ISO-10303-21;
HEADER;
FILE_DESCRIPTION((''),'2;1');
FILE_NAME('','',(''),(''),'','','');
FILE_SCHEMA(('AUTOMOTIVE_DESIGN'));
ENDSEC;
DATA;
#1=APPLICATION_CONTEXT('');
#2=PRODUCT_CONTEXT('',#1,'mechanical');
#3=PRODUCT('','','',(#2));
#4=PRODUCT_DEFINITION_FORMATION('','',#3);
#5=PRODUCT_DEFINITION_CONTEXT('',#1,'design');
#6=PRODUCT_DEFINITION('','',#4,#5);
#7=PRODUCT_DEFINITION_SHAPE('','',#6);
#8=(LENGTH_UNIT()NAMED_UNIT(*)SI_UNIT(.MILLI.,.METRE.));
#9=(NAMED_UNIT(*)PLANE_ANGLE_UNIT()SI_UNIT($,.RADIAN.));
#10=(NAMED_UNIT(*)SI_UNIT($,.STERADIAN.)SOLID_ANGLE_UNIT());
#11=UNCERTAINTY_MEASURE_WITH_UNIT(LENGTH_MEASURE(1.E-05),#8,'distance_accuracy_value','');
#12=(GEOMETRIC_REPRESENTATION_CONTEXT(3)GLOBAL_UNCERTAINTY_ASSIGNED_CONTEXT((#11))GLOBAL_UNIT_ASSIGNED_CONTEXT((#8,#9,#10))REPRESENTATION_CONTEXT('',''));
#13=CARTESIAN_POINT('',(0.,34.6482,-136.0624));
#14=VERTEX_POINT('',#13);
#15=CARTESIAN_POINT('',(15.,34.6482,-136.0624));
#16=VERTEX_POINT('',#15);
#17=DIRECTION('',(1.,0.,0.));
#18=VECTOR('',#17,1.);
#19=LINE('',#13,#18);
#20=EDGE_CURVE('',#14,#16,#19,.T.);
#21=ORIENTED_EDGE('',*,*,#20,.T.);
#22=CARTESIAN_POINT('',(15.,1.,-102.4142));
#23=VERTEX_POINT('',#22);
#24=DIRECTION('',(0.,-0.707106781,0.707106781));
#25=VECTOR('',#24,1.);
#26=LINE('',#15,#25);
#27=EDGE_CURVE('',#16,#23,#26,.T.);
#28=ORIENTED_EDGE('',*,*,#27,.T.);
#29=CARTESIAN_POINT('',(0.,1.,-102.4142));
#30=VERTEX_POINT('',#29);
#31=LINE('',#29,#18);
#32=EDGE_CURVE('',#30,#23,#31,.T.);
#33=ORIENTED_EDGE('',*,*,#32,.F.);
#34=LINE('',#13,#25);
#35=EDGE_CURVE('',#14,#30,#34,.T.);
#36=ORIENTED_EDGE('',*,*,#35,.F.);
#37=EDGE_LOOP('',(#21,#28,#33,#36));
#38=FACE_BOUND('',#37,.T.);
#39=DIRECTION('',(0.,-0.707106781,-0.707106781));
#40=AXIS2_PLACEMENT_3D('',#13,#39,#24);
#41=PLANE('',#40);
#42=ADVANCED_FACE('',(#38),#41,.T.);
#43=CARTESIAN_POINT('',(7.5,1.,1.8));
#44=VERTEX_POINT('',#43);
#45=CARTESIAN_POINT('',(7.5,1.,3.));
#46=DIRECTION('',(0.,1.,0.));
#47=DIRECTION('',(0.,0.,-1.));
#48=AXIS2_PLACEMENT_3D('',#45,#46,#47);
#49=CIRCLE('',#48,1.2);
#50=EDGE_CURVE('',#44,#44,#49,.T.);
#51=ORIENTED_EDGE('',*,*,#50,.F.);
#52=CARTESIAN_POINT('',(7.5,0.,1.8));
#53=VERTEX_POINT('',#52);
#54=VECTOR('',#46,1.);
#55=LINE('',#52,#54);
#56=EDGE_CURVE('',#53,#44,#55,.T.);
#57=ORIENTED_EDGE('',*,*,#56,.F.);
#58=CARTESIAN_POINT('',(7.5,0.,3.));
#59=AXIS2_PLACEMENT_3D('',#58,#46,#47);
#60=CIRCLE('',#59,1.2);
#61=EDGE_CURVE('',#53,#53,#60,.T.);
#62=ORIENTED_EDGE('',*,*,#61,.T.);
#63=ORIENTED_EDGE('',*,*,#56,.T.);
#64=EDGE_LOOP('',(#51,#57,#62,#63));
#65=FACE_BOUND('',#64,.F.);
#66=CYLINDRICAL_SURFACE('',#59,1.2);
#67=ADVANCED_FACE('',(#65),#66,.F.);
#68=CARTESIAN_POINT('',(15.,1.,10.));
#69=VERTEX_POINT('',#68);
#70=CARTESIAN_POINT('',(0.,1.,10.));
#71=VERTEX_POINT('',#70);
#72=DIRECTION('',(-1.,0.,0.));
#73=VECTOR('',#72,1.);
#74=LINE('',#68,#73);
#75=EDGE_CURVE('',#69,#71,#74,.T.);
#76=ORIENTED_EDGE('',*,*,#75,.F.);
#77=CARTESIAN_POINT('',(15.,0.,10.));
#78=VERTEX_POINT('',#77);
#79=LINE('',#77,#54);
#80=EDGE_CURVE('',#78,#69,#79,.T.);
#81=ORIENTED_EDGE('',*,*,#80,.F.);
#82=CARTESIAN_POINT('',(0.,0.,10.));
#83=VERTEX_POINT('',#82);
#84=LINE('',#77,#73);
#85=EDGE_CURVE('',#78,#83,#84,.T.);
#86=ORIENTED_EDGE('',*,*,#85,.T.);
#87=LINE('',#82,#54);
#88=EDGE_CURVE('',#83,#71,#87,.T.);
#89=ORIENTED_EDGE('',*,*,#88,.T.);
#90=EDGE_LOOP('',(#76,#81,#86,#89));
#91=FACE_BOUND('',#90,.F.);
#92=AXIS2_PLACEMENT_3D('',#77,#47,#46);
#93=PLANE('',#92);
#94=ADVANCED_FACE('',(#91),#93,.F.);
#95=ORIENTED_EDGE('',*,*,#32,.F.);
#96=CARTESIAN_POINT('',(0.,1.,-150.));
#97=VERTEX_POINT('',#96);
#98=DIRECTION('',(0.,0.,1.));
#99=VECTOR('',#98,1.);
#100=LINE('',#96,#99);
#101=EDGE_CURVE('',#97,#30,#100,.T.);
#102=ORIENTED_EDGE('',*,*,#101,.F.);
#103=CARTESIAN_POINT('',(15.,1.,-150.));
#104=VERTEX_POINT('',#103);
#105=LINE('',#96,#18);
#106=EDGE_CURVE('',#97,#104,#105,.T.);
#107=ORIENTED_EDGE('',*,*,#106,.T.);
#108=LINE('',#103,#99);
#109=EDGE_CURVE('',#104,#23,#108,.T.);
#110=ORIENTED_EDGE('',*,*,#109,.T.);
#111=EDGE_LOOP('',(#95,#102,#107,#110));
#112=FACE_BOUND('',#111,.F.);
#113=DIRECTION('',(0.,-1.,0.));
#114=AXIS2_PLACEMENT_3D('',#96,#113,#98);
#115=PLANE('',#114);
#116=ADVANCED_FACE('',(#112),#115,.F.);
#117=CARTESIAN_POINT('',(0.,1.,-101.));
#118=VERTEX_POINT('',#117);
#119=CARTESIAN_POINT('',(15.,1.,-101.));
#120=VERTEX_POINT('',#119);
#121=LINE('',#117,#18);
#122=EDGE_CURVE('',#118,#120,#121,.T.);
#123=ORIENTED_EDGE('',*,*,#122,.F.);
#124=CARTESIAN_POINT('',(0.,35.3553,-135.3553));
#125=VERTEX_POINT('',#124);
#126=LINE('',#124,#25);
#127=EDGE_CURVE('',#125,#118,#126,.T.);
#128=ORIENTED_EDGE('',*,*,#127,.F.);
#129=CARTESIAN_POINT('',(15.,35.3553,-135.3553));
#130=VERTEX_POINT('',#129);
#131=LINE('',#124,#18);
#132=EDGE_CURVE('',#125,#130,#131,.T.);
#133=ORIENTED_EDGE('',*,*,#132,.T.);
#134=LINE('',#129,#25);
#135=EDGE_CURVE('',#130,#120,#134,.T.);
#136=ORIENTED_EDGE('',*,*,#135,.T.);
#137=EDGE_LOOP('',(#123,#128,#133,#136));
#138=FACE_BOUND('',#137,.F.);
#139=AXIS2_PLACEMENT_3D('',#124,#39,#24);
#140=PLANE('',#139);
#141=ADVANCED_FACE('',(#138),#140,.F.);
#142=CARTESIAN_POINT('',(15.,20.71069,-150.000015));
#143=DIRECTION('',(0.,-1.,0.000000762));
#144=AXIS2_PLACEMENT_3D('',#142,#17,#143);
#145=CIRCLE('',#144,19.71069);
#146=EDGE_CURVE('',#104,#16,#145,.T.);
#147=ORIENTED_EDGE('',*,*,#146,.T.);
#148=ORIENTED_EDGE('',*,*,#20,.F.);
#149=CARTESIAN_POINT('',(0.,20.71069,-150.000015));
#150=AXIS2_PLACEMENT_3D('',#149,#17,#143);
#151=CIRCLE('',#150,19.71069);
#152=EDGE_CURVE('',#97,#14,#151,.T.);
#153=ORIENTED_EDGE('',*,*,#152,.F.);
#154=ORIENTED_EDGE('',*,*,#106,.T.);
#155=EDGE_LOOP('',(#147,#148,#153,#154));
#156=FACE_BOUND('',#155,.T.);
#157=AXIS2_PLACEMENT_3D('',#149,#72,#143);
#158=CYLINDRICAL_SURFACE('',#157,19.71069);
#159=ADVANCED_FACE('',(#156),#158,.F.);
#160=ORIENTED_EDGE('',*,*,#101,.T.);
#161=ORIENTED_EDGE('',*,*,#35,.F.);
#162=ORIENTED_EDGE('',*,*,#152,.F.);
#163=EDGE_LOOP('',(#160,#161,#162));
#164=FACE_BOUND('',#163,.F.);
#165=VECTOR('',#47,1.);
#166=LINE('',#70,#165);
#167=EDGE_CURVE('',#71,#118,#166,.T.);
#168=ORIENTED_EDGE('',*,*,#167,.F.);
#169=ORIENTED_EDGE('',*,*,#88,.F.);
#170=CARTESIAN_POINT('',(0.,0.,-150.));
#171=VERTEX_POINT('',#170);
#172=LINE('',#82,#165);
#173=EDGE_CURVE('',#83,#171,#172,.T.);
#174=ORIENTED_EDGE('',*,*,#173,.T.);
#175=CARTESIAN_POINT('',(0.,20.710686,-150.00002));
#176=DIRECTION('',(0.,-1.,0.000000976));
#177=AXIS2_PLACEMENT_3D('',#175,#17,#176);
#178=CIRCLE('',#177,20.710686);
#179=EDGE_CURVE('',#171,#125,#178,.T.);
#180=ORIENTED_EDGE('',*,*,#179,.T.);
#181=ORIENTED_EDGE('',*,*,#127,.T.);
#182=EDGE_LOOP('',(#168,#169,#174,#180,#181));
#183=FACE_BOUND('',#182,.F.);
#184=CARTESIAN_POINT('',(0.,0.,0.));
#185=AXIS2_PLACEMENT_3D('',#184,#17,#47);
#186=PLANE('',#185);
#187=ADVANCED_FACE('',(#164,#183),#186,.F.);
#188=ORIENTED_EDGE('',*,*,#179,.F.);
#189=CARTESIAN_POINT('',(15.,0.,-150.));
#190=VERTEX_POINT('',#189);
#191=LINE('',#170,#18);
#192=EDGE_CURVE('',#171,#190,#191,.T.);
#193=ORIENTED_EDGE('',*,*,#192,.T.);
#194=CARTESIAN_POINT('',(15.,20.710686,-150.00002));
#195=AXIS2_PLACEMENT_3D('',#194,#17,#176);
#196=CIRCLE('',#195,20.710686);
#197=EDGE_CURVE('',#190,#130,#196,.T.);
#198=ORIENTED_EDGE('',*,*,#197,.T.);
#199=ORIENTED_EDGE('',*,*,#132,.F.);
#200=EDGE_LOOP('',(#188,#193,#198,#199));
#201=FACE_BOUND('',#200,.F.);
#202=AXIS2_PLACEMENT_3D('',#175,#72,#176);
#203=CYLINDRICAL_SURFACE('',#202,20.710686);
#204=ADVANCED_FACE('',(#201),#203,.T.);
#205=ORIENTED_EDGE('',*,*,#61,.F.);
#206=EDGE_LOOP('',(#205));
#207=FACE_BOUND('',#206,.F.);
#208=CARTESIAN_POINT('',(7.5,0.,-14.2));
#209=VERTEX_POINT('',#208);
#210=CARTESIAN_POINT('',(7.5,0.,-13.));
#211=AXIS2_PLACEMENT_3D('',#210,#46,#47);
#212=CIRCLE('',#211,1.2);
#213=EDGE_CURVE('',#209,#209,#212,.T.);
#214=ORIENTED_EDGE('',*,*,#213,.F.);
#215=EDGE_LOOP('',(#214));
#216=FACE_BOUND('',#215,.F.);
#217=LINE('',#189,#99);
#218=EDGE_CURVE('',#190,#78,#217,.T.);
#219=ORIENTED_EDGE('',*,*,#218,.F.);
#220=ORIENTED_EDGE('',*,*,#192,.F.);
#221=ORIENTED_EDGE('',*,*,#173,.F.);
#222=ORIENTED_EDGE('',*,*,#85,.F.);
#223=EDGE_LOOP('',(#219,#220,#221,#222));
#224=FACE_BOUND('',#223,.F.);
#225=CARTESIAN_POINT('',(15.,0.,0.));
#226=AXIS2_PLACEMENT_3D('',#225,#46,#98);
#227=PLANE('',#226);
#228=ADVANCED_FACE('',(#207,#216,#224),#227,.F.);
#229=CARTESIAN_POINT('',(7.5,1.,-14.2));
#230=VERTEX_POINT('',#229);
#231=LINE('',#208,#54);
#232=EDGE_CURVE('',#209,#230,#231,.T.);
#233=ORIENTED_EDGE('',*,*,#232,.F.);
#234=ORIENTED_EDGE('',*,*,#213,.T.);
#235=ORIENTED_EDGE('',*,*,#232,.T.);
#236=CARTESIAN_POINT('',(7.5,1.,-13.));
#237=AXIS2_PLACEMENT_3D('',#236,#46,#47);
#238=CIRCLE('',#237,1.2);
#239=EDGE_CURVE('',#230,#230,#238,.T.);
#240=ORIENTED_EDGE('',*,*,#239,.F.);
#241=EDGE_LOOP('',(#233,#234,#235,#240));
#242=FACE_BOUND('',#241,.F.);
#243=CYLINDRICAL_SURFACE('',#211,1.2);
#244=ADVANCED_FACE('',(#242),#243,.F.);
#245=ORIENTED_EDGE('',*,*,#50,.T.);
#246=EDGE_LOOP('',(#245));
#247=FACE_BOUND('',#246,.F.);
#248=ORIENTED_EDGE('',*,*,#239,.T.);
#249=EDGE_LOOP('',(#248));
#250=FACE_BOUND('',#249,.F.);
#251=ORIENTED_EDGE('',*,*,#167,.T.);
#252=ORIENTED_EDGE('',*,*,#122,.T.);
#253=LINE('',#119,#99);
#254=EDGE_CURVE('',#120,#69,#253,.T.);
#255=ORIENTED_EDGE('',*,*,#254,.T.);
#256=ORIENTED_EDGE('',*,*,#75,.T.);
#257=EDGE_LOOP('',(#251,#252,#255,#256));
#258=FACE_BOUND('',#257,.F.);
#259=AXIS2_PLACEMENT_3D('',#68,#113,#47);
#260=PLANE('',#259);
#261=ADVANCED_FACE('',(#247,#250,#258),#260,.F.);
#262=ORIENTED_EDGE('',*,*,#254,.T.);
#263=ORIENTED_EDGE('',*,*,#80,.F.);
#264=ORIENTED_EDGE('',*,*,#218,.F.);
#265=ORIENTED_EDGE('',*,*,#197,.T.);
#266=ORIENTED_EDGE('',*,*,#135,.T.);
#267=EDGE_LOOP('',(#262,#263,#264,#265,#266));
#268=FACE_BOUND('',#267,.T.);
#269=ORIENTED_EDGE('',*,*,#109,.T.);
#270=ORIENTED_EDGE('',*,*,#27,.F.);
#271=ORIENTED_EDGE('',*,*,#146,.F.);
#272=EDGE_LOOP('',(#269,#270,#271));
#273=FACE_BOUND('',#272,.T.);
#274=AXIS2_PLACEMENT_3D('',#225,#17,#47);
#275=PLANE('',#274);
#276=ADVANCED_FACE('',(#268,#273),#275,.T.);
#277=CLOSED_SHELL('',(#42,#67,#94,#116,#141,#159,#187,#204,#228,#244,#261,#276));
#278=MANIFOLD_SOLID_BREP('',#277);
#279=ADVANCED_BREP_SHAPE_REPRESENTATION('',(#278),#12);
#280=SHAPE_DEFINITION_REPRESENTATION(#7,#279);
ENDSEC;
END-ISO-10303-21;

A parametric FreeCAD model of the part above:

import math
import FreeCAD as App
import Part
import Sketcher
from FreeCAD import Vector
Q = App.Units.Quantity

doc = App.newDocument("Part")
body = doc.addObject("PartDesign::Body", "Body")

# Sketch on YZ plane
sketch1 = body.newObject("Sketcher::SketchObject", "Sketch")
sketch1.AttachmentSupport = (doc.getObject("YZ_Plane"), [""])
sketch1.MapMode = "FlatFace"
sketch1.addGeometry(Part.LineSegment(Vector(35, -135, 0), Vector(0, -100, 0)), False)
sketch1.addGeometry(Part.LineSegment(Vector(0, -100, 0), Vector(0, -150, 0)), False)
sketch1.addGeometry(Part.ArcOfCircle(Part.Circle(Vector(21, -150, 0), Vector(0, 0, 1), 21), math.radians(180), math.radians(405)), False)
sketch1.addGeometry(Part.ArcOfCircle(Part.Circle(Vector(21, -150, 0), Vector(0, 0, 1), 20), math.radians(180), math.radians(405)), False)
sketch1.addGeometry(Part.LineSegment(Vector(1, -150, 0), Vector(1, -102, 0)), False)
sketch1.addGeometry(Part.LineSegment(Vector(1, -102, 0), Vector(35, -136, 0)), False)
sketch1.addConstraint(Sketcher.Constraint("Coincident", 0, 2, 1, 1))
sketch1.addConstraint(Sketcher.Constraint("Tangent", 1, 2, 2, 1))
sketch1.addConstraint(Sketcher.Constraint("Tangent", 2, 2, 0, 1))
sketch1.addConstraint(Sketcher.Constraint("Tangent", 3, 1, 4, 1))
sketch1.addConstraint(Sketcher.Constraint("Coincident", 4, 2, 5, 1))
sketch1.addConstraint(Sketcher.Constraint("Tangent", 5, 2, 3, 2))
sketch1.addConstraint(Sketcher.Constraint("Vertical", 1))
sketch1.addConstraint(Sketcher.Constraint("Vertical", 4))
sketch1.addConstraint(Sketcher.Constraint("Coincident", 3, 3, 2, 3))
sketch1.addConstraint(Sketcher.Constraint("PointOnObject", 0, 2, -2))
sketch1.addConstraint(Sketcher.Constraint("Parallel", 0, 5))
sketch1.addConstraint(Sketcher.Constraint("Angle", 0, Q("135 deg")))
sketch1.addConstraint(Sketcher.Constraint("DistanceY", 2, 3, -1, 1, 150.0))
sketch1.addConstraint(Sketcher.Constraint("DistanceY", 0, 2, -1, 1, 100.0))
sketch1.addConstraint(Sketcher.Constraint("DistanceX", -1, 1, 3, 1, 1.0))
pad1 = body.newObject("PartDesign::Pad", "Pad")
pad1.Profile = sketch1
pad1.Length = 15

# Sketch on YZ plane
sketch2 = body.newObject("Sketcher::SketchObject", "Sketch001")
sketch2.AttachmentSupport = (doc.getObject("YZ_Plane"), [""])
sketch2.MapMode = "FlatFace"
sketch2.addGeometry(Part.LineSegment(Vector(1, -101, 0), Vector(0, -100, 0)), False)
sketch2.addGeometry(Part.LineSegment(Vector(0, -100, 0), Vector(0, 0, 0)), False)
sketch2.addGeometry(Part.LineSegment(Vector(0, 0, 0), Vector(1, 0, 0)), False)
sketch2.addGeometry(Part.LineSegment(Vector(1, 0, 0), Vector(1, -101, 0)), False)
sketch2.addConstraint(Sketcher.Constraint("Coincident", 0, 2, 1, 1))
sketch2.addConstraint(Sketcher.Constraint("Coincident", 1, 2, 2, 1))
sketch2.addConstraint(Sketcher.Constraint("Coincident", 2, 2, 3, 1))
sketch2.addConstraint(Sketcher.Constraint("Coincident", 3, 2, 0, 1))
sketch2.addConstraint(Sketcher.Constraint("Vertical", 1))
sketch2.addConstraint(Sketcher.Constraint("Horizontal", 2))
sketch2.addConstraint(Sketcher.Constraint("Vertical", 3))
sketch2.addConstraint(Sketcher.Constraint("Coincident", 1, 2, -1, 1))
sketch2.addConstraint(Sketcher.Constraint("DistanceX", 2, 1, 2, 2, 1.0))
sketch2.addConstraint(Sketcher.Constraint("DistanceY", 3, 2, 0, 2, 1.0))
sketch2.addConstraint(Sketcher.Constraint("DistanceY", 1, 1, 1, 2, 100.0))
pad2 = body.newObject("PartDesign::Pad", "Pad001")
pad2.Profile = sketch2
pad2.Length = 15

# Sketch on YZ plane
sketch3 = body.newObject("Sketcher::SketchObject", "Sketch002")
sketch3.AttachmentSupport = (doc.getObject("YZ_Plane"), [""])
sketch3.MapMode = "FlatFace"
sketch3.AttachmentOffset = App.Placement(Vector(0, 0, 15), App.Rotation())
sketch3.addGeometry(Part.LineSegment(Vector(0, 10, 0), Vector(0, 0, 0)), False)
sketch3.addGeometry(Part.LineSegment(Vector(0, 0, 0), Vector(1, 0, 0)), False)
sketch3.addGeometry(Part.LineSegment(Vector(1, 0, 0), Vector(1, 10, 0)), False)
sketch3.addGeometry(Part.LineSegment(Vector(1, 10, 0), Vector(0, 10, 0)), False)
sketch3.addConstraint(Sketcher.Constraint("Coincident", 0, 2, 1, 1))
sketch3.addConstraint(Sketcher.Constraint("Coincident", 1, 2, 2, 1))
sketch3.addConstraint(Sketcher.Constraint("Coincident", 2, 2, 3, 1))
sketch3.addConstraint(Sketcher.Constraint("Coincident", 3, 2, 0, 1))
sketch3.addConstraint(Sketcher.Constraint("Vertical", 0))
sketch3.addConstraint(Sketcher.Constraint("Horizontal", 1))
sketch3.addConstraint(Sketcher.Constraint("Vertical", 2))
sketch3.addConstraint(Sketcher.Constraint("Horizontal", 3))
sketch3.addConstraint(Sketcher.Constraint("Coincident", 0, 2, -1, 1))
sketch3.addConstraint(Sketcher.Constraint("DistanceX", 1, 1, 1, 2, 1.0))
sketch3.addConstraint(Sketcher.Constraint("DistanceY", 0, 2, 0, 1, 10.0))
pad3 = body.newObject("PartDesign::Pad", "Pad002")
pad3.Profile = sketch3
pad3.Length = 15
pad3.Reversed = True

# Sketch on XZ plane
sketch4 = body.newObject("Sketcher::SketchObject", "Sketch003")
sketch4.AttachmentSupport = (doc.getObject("XZ_Plane"), [""])
sketch4.MapMode = "FlatFace"
sketch4.addGeometry(Part.Circle(Vector(7.5, 3, 0), Vector(0, 0, 1), 1.2), False)
sketch4.addConstraint(Sketcher.Constraint("Diameter", 0, 2.4))
sketch4.addConstraint(Sketcher.Constraint("DistanceY", -1, 1, 0, 3, 3.0))
sketch4.addConstraint(Sketcher.Constraint("DistanceX", -1, 1, 0, 3, 7.5))
doc.recompute()
hole = body.newObject("PartDesign::Hole", "Hole")
hole.Profile = sketch4
hole.ThreadType = "None"
hole.Diameter = 2.4
hole.DepthType = "ThroughAll"

# Sketch on XZ plane
sketch5 = body.newObject("Sketcher::SketchObject", "Sketch004")
sketch5.AttachmentSupport = (doc.getObject("XZ_Plane"), [""])
sketch5.MapMode = "FlatFace"
sketch5.addGeometry(Part.Circle(Vector(7.5, -13, 0), Vector(0, 0, 1), 1.2), False)
sketch5.addConstraint(Sketcher.Constraint("Diameter", 0, 2.4))
sketch5.addConstraint(Sketcher.Constraint("DistanceY", 0, 3, -1, 1, 13.0))
sketch5.addConstraint(Sketcher.Constraint("DistanceX", -1, 1, 0, 3, 7.5))
doc.recompute()
hole2 = body.newObject("PartDesign::Hole", "Hole001")
hole2.Profile = sketch5
hole2.ThreadType = "None"
hole2.Diameter = 2.4
hole2.DepthType = "ThroughAll"

doc.recompute()
